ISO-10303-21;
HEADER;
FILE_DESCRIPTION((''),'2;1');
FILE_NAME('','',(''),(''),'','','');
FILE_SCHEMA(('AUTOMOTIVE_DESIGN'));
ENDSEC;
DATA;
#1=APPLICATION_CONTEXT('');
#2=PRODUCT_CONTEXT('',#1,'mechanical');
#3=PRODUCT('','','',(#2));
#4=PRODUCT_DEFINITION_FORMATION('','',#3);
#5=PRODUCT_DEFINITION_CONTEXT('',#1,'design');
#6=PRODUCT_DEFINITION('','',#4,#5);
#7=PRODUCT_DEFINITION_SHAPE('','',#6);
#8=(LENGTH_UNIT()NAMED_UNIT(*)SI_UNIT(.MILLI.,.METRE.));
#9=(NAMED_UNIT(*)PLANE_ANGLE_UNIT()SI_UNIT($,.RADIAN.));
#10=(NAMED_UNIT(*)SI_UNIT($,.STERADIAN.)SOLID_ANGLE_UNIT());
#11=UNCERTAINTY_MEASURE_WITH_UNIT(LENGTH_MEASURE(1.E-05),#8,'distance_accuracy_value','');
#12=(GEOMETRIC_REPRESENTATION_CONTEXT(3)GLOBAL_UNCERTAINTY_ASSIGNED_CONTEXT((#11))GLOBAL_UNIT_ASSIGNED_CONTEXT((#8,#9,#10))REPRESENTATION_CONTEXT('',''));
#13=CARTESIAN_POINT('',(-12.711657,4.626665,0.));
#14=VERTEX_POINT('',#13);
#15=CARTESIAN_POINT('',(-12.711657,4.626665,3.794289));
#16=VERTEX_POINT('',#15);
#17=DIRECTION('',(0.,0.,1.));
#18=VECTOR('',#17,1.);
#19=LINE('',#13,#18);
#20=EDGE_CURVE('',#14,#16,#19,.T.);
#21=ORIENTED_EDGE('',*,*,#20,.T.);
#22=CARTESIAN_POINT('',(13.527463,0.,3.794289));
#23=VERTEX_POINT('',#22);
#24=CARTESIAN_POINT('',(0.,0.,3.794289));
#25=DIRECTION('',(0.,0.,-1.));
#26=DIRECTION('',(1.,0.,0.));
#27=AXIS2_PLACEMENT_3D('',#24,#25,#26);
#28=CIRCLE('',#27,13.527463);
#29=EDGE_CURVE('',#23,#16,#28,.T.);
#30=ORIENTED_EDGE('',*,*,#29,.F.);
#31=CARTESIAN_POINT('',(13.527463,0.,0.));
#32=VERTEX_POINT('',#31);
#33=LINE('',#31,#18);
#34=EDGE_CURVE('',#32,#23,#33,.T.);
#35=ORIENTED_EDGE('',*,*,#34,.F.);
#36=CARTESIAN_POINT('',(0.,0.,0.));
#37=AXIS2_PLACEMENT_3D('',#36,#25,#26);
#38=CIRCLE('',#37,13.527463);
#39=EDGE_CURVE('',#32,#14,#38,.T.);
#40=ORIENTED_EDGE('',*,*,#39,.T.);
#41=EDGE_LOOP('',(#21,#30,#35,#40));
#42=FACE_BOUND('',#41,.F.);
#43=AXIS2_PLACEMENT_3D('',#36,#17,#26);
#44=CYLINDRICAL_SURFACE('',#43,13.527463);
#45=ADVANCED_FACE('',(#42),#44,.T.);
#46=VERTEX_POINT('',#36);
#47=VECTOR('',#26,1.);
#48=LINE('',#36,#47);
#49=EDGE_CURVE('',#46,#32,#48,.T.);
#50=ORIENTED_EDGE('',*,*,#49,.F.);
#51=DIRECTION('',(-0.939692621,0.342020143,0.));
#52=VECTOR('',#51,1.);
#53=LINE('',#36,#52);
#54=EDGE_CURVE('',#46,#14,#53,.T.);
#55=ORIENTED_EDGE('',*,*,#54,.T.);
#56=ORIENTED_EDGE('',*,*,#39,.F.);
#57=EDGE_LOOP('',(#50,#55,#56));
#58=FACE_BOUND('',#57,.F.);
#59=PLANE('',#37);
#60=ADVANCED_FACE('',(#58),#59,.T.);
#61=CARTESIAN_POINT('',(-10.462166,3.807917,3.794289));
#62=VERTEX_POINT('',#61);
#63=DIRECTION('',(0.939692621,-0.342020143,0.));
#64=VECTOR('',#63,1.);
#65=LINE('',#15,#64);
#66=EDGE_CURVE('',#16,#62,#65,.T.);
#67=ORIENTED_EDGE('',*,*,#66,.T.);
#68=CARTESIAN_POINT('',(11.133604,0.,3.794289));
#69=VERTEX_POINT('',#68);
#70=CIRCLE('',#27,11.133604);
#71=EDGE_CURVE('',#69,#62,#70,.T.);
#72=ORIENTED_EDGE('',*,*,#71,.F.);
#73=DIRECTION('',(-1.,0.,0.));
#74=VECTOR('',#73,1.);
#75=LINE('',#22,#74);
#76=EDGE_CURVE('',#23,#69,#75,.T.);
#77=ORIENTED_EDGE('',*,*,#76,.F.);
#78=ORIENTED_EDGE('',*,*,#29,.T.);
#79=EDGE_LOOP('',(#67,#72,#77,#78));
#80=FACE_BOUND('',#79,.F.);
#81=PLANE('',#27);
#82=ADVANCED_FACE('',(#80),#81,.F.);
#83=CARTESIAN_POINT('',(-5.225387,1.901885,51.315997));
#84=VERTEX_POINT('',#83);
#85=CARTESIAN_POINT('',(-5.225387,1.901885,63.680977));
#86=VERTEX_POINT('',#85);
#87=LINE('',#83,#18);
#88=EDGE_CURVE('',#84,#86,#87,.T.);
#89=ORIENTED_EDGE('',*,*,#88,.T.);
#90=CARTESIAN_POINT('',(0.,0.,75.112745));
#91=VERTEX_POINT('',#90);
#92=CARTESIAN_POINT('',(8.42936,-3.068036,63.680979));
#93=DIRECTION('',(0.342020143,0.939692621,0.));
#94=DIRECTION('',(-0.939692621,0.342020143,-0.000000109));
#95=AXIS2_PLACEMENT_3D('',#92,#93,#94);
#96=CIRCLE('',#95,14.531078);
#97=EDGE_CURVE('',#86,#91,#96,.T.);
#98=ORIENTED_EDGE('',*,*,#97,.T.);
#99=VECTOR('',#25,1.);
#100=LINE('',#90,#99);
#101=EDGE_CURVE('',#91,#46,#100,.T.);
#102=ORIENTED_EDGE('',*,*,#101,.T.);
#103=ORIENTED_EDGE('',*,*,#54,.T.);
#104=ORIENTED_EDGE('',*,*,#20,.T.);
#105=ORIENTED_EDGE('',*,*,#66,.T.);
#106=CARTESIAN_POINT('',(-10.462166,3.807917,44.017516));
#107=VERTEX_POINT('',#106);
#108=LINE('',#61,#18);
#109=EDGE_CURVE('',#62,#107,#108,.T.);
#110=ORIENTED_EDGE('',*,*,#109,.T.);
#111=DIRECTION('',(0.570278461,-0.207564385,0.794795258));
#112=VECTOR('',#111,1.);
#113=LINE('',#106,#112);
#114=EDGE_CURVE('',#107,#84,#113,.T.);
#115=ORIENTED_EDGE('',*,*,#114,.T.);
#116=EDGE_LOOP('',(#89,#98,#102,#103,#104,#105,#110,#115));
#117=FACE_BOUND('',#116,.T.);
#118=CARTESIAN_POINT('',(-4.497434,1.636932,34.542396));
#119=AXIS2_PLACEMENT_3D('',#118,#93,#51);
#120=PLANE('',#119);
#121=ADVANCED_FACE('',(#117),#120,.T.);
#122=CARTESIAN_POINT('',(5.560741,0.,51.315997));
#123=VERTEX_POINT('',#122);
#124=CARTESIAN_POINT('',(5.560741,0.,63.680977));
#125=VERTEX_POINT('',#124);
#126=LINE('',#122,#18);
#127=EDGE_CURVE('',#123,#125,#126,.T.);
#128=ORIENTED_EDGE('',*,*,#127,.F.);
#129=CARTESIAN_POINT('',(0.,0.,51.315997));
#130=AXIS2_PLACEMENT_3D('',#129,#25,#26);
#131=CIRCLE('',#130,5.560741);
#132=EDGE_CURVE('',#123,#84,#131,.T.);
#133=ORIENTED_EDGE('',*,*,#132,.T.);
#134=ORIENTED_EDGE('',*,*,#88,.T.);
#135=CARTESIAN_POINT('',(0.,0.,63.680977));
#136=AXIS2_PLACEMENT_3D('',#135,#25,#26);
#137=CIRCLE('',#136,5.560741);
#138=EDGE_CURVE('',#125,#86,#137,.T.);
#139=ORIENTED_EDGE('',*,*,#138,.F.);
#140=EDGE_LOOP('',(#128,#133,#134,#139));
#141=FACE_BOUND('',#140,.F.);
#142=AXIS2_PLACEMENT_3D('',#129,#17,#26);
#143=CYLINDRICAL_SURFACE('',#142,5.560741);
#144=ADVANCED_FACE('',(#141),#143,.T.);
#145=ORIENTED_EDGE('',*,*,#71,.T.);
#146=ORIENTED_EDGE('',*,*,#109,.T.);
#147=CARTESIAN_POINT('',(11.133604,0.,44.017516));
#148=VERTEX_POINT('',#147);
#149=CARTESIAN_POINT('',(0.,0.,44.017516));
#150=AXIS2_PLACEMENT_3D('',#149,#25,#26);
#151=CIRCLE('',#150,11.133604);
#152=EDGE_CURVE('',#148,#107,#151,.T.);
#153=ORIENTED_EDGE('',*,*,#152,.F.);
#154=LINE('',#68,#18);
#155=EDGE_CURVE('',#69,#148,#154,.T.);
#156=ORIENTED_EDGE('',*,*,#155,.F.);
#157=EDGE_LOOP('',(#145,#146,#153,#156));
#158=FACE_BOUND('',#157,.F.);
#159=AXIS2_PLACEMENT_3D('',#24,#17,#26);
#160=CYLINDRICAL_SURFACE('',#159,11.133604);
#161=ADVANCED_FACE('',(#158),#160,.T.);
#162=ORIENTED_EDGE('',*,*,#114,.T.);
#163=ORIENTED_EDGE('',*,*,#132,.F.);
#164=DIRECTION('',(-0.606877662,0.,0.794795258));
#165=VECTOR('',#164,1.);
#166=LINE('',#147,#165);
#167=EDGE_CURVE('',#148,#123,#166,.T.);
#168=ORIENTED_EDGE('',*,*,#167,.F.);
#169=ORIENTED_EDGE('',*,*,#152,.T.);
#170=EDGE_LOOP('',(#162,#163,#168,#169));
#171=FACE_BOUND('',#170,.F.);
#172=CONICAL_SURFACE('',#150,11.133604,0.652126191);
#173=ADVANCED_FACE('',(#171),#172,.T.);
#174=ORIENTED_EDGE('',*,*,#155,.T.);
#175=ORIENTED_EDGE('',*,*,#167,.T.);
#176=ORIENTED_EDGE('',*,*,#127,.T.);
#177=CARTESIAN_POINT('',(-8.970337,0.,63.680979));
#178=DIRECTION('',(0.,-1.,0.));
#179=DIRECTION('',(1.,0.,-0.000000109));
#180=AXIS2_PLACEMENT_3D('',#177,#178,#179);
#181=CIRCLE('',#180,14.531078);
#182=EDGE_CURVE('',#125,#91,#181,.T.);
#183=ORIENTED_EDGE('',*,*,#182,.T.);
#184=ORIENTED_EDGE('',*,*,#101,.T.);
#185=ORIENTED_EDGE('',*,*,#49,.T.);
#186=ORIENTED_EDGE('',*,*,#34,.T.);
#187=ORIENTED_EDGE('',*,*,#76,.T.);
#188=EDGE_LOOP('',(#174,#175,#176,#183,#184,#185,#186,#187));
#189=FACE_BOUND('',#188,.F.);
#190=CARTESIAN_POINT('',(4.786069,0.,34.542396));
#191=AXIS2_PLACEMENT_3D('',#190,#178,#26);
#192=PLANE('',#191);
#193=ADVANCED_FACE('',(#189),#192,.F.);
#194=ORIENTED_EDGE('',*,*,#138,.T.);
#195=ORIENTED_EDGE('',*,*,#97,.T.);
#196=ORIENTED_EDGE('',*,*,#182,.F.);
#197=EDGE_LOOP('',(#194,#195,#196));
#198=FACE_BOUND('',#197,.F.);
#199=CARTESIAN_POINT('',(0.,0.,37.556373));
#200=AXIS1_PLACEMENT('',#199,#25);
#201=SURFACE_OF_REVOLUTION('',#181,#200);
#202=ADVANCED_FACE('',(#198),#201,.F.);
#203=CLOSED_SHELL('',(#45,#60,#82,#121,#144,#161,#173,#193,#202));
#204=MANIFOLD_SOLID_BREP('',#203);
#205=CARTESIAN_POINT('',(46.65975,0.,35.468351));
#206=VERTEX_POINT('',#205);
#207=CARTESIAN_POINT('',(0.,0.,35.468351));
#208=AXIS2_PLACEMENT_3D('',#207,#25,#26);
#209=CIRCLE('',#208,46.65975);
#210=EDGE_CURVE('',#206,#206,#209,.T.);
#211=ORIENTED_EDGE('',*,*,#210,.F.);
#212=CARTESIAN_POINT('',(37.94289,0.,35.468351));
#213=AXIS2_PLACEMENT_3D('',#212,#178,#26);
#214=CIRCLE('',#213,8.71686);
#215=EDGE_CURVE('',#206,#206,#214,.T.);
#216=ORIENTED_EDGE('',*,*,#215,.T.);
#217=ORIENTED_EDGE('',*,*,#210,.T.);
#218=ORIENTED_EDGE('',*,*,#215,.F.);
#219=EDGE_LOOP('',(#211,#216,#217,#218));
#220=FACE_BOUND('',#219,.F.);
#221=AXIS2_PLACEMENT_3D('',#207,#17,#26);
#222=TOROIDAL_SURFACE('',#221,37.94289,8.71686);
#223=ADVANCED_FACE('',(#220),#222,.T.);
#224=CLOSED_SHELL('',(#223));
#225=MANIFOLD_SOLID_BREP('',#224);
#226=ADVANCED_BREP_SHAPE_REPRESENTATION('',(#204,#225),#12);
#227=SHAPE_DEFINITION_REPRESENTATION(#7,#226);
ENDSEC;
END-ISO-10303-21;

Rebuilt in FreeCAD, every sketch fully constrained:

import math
import FreeCAD as App
import Part
import Sketcher

V = App.Vector
Q = App.Units.Quantity

doc = App.newDocument("Part")
body = doc.addObject("PartDesign::Body", "Body")

sketch1 = body.newObject("Sketcher::SketchObject", "Sketch")
sketch1.AttachmentSupport = (doc.getObject("XZ_Plane"), [""])
sketch1.MapMode = "FlatFace"
sketch1.addGeometry([
    Part.LineSegment(V(0, 75.112745, 0), V(0, 0, 0)),
    Part.LineSegment(V(0, 0, 0), V(13.527463, 0, 0)),
    Part.LineSegment(V(13.527463, 0, 0), V(13.527463, 3.794289, 0)),
    Part.LineSegment(V(13.527463, 3.794289, 0), V(11.133604, 3.794289, 0)),
    Part.LineSegment(V(11.133604, 3.794289, 0), V(11.133604, 44.017516, 0)),
    Part.LineSegment(V(11.133604, 44.017516, 0), V(5.560741, 51.315997, 0)),
    Part.LineSegment(V(5.560741, 51.315997, 0), V(5.560741, 63.680977, 0)),
    Part.ArcOfCircle(Part.Circle(V(-8.970337, 63.680979, 0), V(0, 0, 1), 14.531078), math.radians(-0.000006), math.radians(51.87925)),
], False)
sketch1.addConstraint([
    Sketcher.Constraint("Coincident", 0, 2, 1, 1),
    Sketcher.Constraint("Coincident", 1, 2, 2, 1),
    Sketcher.Constraint("Coincident", 2, 2, 3, 1),
    Sketcher.Constraint("Coincident", 3, 2, 4, 1),
    Sketcher.Constraint("Coincident", 4, 2, 5, 1),
    Sketcher.Constraint("Coincident", 5, 2, 6, 1),
    Sketcher.Constraint("Tangent", 6, 2, 7, 1),
    Sketcher.Constraint("Coincident", 7, 2, 0, 1),
    Sketcher.Constraint("Vertical", 0),
    Sketcher.Constraint("Horizontal", 1),
    Sketcher.Constraint("Vertical", 2),
    Sketcher.Constraint("Horizontal", 3),
    Sketcher.Constraint("Vertical", 4),
    Sketcher.Constraint("Vertical", 6),
    Sketcher.Constraint("Coincident", 0, 2, -1, 1),
    Sketcher.Constraint("Radius", 7, Q("14.531078 mm")),
    Sketcher.Constraint("DistanceX", 3, 2, 3, 1, Q("2.393859 mm")),
    Sketcher.Constraint("DistanceY", 2, 1, 2, 2, Q("3.794289 mm")),
    Sketcher.Constraint("DistanceY", 6, 1, 6, 2, Q("12.36498 mm")),
    Sketcher.Constraint("DistanceX", 7, 3, 1, 2, Q("22.4978 mm")),
    Sketcher.Constraint("DistanceX", 1, 1, 1, 2, Q("13.527463 mm")),
    Sketcher.Constraint("DistanceY", 0, 2, 0, 1, Q("75.112745 mm")),
    Sketcher.Constraint("DistanceY", 4, 1, 4, 2, Q("40.223227 mm")),
])
revolution = body.newObject("PartDesign::Revolution", "Revolution")
revolution.Profile = sketch1
revolution.ReferenceAxis = (sketch1, ["V_Axis"])
revolution.Angle = 200
revolution.Reversed = True
body2 = doc.addObject("PartDesign::Body", "Body001")

sketch2 = body2.newObject("Sketcher::SketchObject", "Sketch001")
sketch2.AttachmentSupport = (doc.getObject("XZ_Plane001"), [""])
sketch2.MapMode = "FlatFace"
sketch2.addGeometry(Part.Circle(V(37.94289, 35.468351, 0), V(0, 0, 1), 8.71686), False)
sketch2.addConstraint([
    Sketcher.Constraint("Diameter", 0, Q("17.43372 mm")),
    Sketcher.Constraint("DistanceX", -1, 1, 0, 3, Q("37.94289 mm")),
    Sketcher.Constraint("DistanceY", -1, 1, 0, 3, Q("35.468351 mm")),
])
revolution2 = body2.newObject("PartDesign::Revolution", "Revolution001")
revolution2.Profile = sketch2
revolution2.ReferenceAxis = (sketch2, ["V_Axis"])
revolution2.Angle = 360

doc.recompute()
